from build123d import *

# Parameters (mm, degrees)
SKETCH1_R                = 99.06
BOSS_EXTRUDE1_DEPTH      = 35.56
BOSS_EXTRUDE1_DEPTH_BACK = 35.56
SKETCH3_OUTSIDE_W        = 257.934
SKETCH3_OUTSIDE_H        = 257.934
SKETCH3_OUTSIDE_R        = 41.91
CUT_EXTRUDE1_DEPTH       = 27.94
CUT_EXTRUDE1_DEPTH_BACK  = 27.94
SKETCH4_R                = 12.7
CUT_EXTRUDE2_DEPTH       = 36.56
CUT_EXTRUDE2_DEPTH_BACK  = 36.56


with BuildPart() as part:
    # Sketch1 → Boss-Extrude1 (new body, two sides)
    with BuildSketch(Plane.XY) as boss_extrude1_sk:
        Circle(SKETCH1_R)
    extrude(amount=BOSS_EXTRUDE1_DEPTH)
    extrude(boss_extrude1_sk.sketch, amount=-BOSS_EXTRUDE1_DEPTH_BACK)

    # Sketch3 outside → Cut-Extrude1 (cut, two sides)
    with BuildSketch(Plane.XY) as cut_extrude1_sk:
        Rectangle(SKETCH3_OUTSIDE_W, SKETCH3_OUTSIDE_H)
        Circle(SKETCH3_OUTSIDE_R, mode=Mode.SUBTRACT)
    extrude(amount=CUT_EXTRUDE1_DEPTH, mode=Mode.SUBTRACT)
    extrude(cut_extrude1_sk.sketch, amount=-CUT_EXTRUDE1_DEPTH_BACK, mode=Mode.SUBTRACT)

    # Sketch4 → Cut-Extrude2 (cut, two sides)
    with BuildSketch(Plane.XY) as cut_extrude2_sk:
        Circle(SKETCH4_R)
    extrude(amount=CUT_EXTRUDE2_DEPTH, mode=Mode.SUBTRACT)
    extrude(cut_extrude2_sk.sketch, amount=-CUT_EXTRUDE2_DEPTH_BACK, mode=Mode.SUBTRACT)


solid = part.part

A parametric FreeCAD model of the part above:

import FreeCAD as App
import Part
import Sketcher
from FreeCAD import Vector
Q = App.Units.Quantity


def add_polygon(sketch, points):
    """Adds a closed chain of lines whose ends are joined by coincident constraints."""
    first, n = sketch.GeometryCount, len(points)
    for a, b in zip(points, points[1:] + points[:1]):
        sketch.addGeometry(Part.LineSegment(App.Vector(*a, 0), App.Vector(*b, 0)), False)
    for i in range(n):
        sketch.addConstraint(Sketcher.Constraint("Coincident", first + i, 2, first + (i + 1) % n, 1))

doc = App.newDocument("Part")
body = doc.addObject("PartDesign::Body", "Body")

sketch1 = body.newObject("Sketcher::SketchObject", "Sketch")
sketch1.AttachmentSupport = (doc.getObject("XY_Plane"), [""])
sketch1.MapMode = "FlatFace"
sketch1.addGeometry(Part.Circle(Vector(0, 0, 0), Vector(0, 0, 1), 99.06), False)
sketch1.addConstraint(Sketcher.Constraint("Coincident", 0, 3, -1, 1))
sketch1.addConstraint(Sketcher.Constraint("Diameter", 0, Q("7.8 in")))
pad1 = body.newObject("PartDesign::Pad", "Pad")
pad1.Profile = sketch1
pad1.Type = "TwoLengths"
pad1.Length = Q("1.4 in")
pad1.Length2 = Q("1.4 in")

sketch2 = body.newObject("Sketcher::SketchObject", "Sketch001")
sketch2.AttachmentSupport = (doc.getObject("XY_Plane"), [""])
sketch2.MapMode = "FlatFace"
add_polygon(sketch2, [(-128.967, 128.967), (-128.967, -128.967), (128.967, -128.967), (128.967, 128.967)])
sketch2.addGeometry(Part.Circle(Vector(0, 0, 0), Vector(0, 0, 1), 41.91), False)
sketch2.addConstraint(Sketcher.Constraint("Vertical", 0))
sketch2.addConstraint(Sketcher.Constraint("Horizontal", 1))
sketch2.addConstraint(Sketcher.Constraint("Vertical", 2))
sketch2.addConstraint(Sketcher.Constraint("Horizontal", 3))
sketch2.addConstraint(Sketcher.Constraint("Coincident", 4, 3, -1, 1))
sketch2.addConstraint(Sketcher.Constraint("Symmetric", 0, 2, 2, 2, -1, 1))
sketch2.addConstraint(Sketcher.Constraint("Equal", 3, 0))
sketch2.addConstraint(Sketcher.Constraint("Diameter", 4, Q("3.3 in")))
sketch2.addConstraint(Sketcher.Constraint("DistanceX", 1, 1, 1, 2, Q("257.934 mm")))
pocket1 = body.newObject("PartDesign::Pocket", "Pocket")
pocket1.Profile = sketch2
pocket1.Type = "TwoLengths"
pocket1.Length = Q("1.1 in")
pocket1.Length2 = Q("1.1 in")
pocket1.Reversed = True

sketch3 = body.newObject("Sketcher::SketchObject", "Sketch002")
sketch3.AttachmentSupport = (doc.getObject("XY_Plane"), [""])
sketch3.MapMode = "FlatFace"
sketch3.addGeometry(Part.Circle(Vector(0, 0, 0), Vector(0, 0, 1), 12.7), False)
sketch3.addConstraint(Sketcher.Constraint("Coincident", 0, 3, -1, 1))
sketch3.addConstraint(Sketcher.Constraint("Diameter", 0, Q("1 in")))
pocket2 = body.newObject("PartDesign::Pocket", "Pocket001")
pocket2.Profile = sketch3
pocket2.Type = "ThroughAll"
pocket2.Midplane = True

doc.recompute()
